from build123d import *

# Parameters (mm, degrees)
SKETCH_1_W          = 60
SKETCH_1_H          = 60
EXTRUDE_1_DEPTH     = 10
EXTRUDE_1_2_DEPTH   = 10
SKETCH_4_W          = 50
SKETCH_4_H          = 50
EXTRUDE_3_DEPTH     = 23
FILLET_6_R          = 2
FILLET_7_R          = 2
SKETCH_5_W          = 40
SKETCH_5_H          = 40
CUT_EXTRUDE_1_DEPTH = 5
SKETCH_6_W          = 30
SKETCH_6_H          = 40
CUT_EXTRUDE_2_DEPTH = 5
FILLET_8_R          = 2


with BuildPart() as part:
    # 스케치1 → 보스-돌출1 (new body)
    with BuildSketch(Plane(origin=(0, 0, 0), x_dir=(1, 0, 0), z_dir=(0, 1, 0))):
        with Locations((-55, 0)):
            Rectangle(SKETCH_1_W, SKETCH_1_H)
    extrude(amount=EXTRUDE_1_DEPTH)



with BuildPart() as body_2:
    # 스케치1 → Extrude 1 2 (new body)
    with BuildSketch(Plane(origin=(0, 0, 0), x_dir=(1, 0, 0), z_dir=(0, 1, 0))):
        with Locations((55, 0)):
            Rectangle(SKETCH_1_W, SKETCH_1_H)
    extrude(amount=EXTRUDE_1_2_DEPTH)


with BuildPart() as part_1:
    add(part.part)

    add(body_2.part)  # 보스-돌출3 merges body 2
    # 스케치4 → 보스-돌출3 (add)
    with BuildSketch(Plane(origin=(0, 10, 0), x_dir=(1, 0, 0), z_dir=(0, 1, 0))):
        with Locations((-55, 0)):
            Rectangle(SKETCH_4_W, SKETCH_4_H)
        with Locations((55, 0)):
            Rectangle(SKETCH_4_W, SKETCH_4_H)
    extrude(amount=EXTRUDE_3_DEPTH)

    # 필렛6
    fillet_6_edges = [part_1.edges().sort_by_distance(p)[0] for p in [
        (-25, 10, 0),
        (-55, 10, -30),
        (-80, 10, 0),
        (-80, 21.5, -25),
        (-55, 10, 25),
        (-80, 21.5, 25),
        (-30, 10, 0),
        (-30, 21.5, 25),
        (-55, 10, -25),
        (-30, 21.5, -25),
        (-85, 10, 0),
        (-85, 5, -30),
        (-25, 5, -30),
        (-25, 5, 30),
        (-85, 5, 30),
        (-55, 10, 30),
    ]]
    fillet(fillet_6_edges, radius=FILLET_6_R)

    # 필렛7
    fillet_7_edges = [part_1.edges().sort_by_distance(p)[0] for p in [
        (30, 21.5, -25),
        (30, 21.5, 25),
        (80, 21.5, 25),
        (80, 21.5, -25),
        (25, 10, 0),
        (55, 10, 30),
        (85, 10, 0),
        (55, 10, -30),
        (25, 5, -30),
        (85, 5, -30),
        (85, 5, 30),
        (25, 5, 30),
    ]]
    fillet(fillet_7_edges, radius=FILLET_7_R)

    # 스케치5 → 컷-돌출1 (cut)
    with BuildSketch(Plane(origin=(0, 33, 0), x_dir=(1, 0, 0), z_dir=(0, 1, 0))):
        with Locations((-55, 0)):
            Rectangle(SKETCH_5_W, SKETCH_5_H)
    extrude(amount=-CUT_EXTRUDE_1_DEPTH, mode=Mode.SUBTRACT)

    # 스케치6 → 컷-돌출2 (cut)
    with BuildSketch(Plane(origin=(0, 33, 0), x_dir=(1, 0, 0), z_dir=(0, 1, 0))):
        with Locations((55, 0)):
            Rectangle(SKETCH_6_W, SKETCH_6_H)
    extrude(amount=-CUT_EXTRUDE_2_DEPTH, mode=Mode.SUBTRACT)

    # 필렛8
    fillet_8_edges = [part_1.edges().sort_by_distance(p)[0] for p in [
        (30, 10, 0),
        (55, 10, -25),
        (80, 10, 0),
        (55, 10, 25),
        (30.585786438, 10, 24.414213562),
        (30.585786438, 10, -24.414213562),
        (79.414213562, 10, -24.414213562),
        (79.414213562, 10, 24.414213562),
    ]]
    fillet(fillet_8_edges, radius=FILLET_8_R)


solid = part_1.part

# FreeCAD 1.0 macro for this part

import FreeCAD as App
import Part
import Sketcher


def edges_at(feature, points):
    """Names of the edges that pass closest to the given points."""
    edges = feature.Shape.Edges
    near = lambda p: min(range(len(edges)), key=lambda i: edges[i].distToShape(Part.Vertex(*p))[0])
    return sorted({f"Edge{near(p) + 1}" for p in points})

doc = App.newDocument("Part")
params = doc.addObject("Spreadsheet::Sheet", "Params")
for row, (alias, value) in enumerate([
    ("sketch1_width", "60 mm"),
    ("pad1_length", "10 mm"),
    ("sketch2_width", "60 mm"),
    ("pad2_length", "10 mm"),
    ("sketch3_width", "50 mm"),
    ("pad3_length", "23 mm"),
    ("fillet_radius", "2 mm"),
    ("fillet2_radius", "2 mm"),
    ("sketch4_width", "40 mm"),
    ("pocket1_length", "5 mm"),
    ("sketch5_width", "30 mm"),
    ("sketch5_height", "40 mm"),
    ("pocket2_length", "5 mm"),
    ("fillet3_radius", "2 mm"),
], start=1):
    params.set(f"A{row}", alias)
    params.set(f"B{row}", "=" + value)
    params.setAlias(f"B{row}", alias)

body = doc.addObject("PartDesign::Body", "Body")

sketch1 = body.newObject("Sketcher::SketchObject", "Sketch")
sketch1.AttachmentSupport = (doc.getObject("XZ_Plane"), [""])
sketch1.MapMode = "FlatFace"
sketch1.addGeometry([
    Part.LineSegment(App.Vector(-85, -30, 0), App.Vector(-85, 30, 0)),
    Part.LineSegment(App.Vector(-85, 30, 0), App.Vector(-25, 30, 0)),
    Part.LineSegment(App.Vector(-25, 30, 0), App.Vector(-25, -30, 0)),
    Part.LineSegment(App.Vector(-25, -30, 0), App.Vector(-85, -30, 0)),
], False)
sketch1.addConstraint([
    Sketcher.Constraint("Coincident", 0, 2, 1, 1),
    Sketcher.Constraint("Coincident", 1, 2, 2, 1),
    Sketcher.Constraint("Coincident", 2, 2, 3, 1),
    Sketcher.Constraint("Coincident", 3, 2, 0, 1),
    Sketcher.Constraint("Vertical", 0),
    Sketcher.Constraint("Horizontal", 1),
    Sketcher.Constraint("Vertical", 2),
    Sketcher.Constraint("Horizontal", 3),
    Sketcher.Constraint("Equal", 3, 0),
    Sketcher.Constraint("DistanceX", 1, 1, 1, 2, 60.0),
    Sketcher.Constraint("DistanceX", 0, 2, -1, 1, 85.0),
    Sketcher.Constraint("DistanceY", -1, 1, 0, 2, 30.0),
])
sketch1.setExpression("Constraints[9]", "Params.sketch1_width")
pad1 = body.newObject("PartDesign::Pad", "Pad")
pad1.Profile = sketch1
pad1.setExpression("Length", "Params.pad1_length")
pad1.Reversed = True
body2 = doc.addObject("PartDesign::Body", "Body001")

sketch2 = body2.newObject("Sketcher::SketchObject", "Sketch001")
sketch2.AttachmentSupport = (doc.getObject("XZ_Plane001"), [""])
sketch2.MapMode = "FlatFace"
sketch2.addGeometry([
    Part.LineSegment(App.Vector(25, -30, 0), App.Vector(25, 30, 0)),
    Part.LineSegment(App.Vector(25, 30, 0), App.Vector(85, 30, 0)),
    Part.LineSegment(App.Vector(85, 30, 0), App.Vector(85, -30, 0)),
    Part.LineSegment(App.Vector(85, -30, 0), App.Vector(25, -30, 0)),
], False)
sketch2.addConstraint([
    Sketcher.Constraint("Coincident", 0, 2, 1, 1),
    Sketcher.Constraint("Coincident", 1, 2, 2, 1),
    Sketcher.Constraint("Coincident", 2, 2, 3, 1),
    Sketcher.Constraint("Coincident", 3, 2, 0, 1),
    Sketcher.Constraint("Vertical", 0),
    Sketcher.Constraint("Horizontal", 1),
    Sketcher.Constraint("Vertical", 2),
    Sketcher.Constraint("Horizontal", 3),
    Sketcher.Constraint("Equal", 3, 0),
    Sketcher.Constraint("DistanceX", 1, 1, 1, 2, 60.0),
    Sketcher.Constraint("DistanceX", -1, 1, 0, 2, 25.0),
    Sketcher.Constraint("DistanceY", -1, 1, 0, 2, 30.0),
])
sketch2.setExpression("Constraints[9]", "Params.sketch2_width")
pad2 = body2.newObject("PartDesign::Pad", "Pad001")
pad2.Profile = sketch2
pad2.setExpression("Length", "Params.pad2_length")
pad2.Reversed = True
body.AllowCompound = True
doc.recompute()

boolean = body.newObject("PartDesign::Boolean", "Boolean")
boolean.Type = "Fuse"
boolean.addObjects([body2])

sketch3 = body.newObject("Sketcher::SketchObject", "Sketch002")
sketch3.AttachmentSupport = (doc.getObject("XZ_Plane"), [""])
sketch3.MapMode = "FlatFace"
sketch3.AttachmentOffset = App.Placement(App.Vector(0, 0, -10), App.Rotation())
sketch3.addGeometry([
    Part.LineSegment(App.Vector(-80, -25, 0), App.Vector(-80, 25, 0)),
    Part.LineSegment(App.Vector(-80, 25, 0), App.Vector(-30, 25, 0)),
    Part.LineSegment(App.Vector(-30, 25, 0), App.Vector(-30, -25, 0)),
    Part.LineSegment(App.Vector(-30, -25, 0), App.Vector(-80, -25, 0)),
    Part.LineSegment(App.Vector(30, -25, 0), App.Vector(30, 25, 0)),
    Part.LineSegment(App.Vector(30, 25, 0), App.Vector(80, 25, 0)),
    Part.LineSegment(App.Vector(80, 25, 0), App.Vector(80, -25, 0)),
    Part.LineSegment(App.Vector(80, -25, 0), App.Vector(30, -25, 0)),
], False)
sketch3.addConstraint([
    Sketcher.Constraint("Coincident", 0, 2, 1, 1),
    Sketcher.Constraint("Coincident", 1, 2, 2, 1),
    Sketcher.Constraint("Coincident", 2, 2, 3, 1),
    Sketcher.Constraint("Coincident", 3, 2, 0, 1),
    Sketcher.Constraint("Coincident", 4, 2, 5, 1),
    Sketcher.Constraint("Coincident", 5, 2, 6, 1),
    Sketcher.Constraint("Coincident", 6, 2, 7, 1),
    Sketcher.Constraint("Coincident", 7, 2, 4, 1),
    Sketcher.Constraint("Vertical", 0),
    Sketcher.Constraint("Horizontal", 1),
    Sketcher.Constraint("Vertical", 2),
    Sketcher.Constraint("Horizontal", 3),
    Sketcher.Constraint("Vertical", 4),
    Sketcher.Constraint("Horizontal", 5),
    Sketcher.Constraint("Vertical", 6),
    Sketcher.Constraint("Horizontal", 7),
    Sketcher.Constraint("Symmetric", 2, 2, 4, 2, -1, 1),
    Sketcher.Constraint("Symmetric", 0, 2, 6, 2, -1, 1),
    Sketcher.Constraint("Horizontal", 1, 2, 4, 2),
    Sketcher.Constraint("Equal", 7, 0),
    Sketcher.Constraint("DistanceX", 1, 1, 1, 2, 50.0),
    Sketcher.Constraint("DistanceX", 0, 2, -1, 1, 80.0),
])
sketch3.setExpression("Constraints[20]", "Params.sketch3_width")
pad3 = body.newObject("PartDesign::Pad", "Pad002")
pad3.Profile = sketch3
pad3.setExpression("Length", "Params.pad3_length")
pad3.Reversed = True
doc.recompute()

fillet = body.newObject("PartDesign::Fillet", "Fillet")
fillet.Base = (pad3, edges_at(pad3, [
    (-25, 10, 0),
    (-55, 10, -30),
    (-80, 10, 0),
    (-80, 21.5, -25),
    (-55, 10, 25),
    (-80, 21.5, 25),
    (-30, 10, 0),
    (-30, 21.5, 25),
    (-55, 10, -25),
    (-30, 21.5, -25),
    (-85, 10, 0),
    (-85, 5, -30),
    (-25, 5, -30),
    (-25, 5, 30),
    (-85, 5, 30),
    (-55, 10, 30),
]))
fillet.setExpression("Radius", "Params.fillet_radius")
doc.recompute()

fillet2 = body.newObject("PartDesign::Fillet", "Fillet001")
fillet2.Base = (fillet, edges_at(fillet, [
    (30, 21.5, -25),
    (30, 21.5, 25),
    (80, 21.5, 25),
    (80, 21.5, -25),
    (25, 10, 0),
    (55, 10, 30),
    (85, 10, 0),
    (55, 10, -30),
    (25, 5, -30),
    (85, 5, -30),
    (85, 5, 30),
    (25, 5, 30),
]))
fillet2.setExpression("Radius", "Params.fillet2_radius")

sketch4 = body.newObject("Sketcher::SketchObject", "Sketch003")
sketch4.AttachmentSupport = (doc.getObject("XZ_Plane"), [""])
sketch4.MapMode = "FlatFace"
sketch4.AttachmentOffset = App.Placement(App.Vector(0, 0, -33), App.Rotation())
sketch4.addGeometry([
    Part.LineSegment(App.Vector(-75, -20, 0), App.Vector(-75, 20, 0)),
    Part.LineSegment(App.Vector(-75, 20, 0), App.Vector(-35, 20, 0)),
    Part.LineSegment(App.Vector(-35, 20, 0), App.Vector(-35, -20, 0)),
    Part.LineSegment(App.Vector(-35, -20, 0), App.Vector(-75, -20, 0)),
], False)
sketch4.addConstraint([
    Sketcher.Constraint("Coincident", 0, 2, 1, 1),
    Sketcher.Constraint("Coincident", 1, 2, 2, 1),
    Sketcher.Constraint("Coincident", 2, 2, 3, 1),
    Sketcher.Constraint("Coincident", 3, 2, 0, 1),
    Sketcher.Constraint("Vertical", 0),
    Sketcher.Constraint("Horizontal", 1),
    Sketcher.Constraint("Vertical", 2),
    Sketcher.Constraint("Horizontal", 3),
    Sketcher.Constraint("Equal", 3, 0),
    Sketcher.Constraint("DistanceX", 1, 1, 1, 2, 40.0),
    Sketcher.Constraint("DistanceX", 0, 2, -1, 1, 75.0),
    Sketcher.Constraint("DistanceY", -1, 1, 0, 2, 20.0),
])
sketch4.setExpression("Constraints[9]", "Params.sketch4_width")
pocket1 = body.newObject("PartDesign::Pocket", "Pocket")
pocket1.Profile = sketch4
pocket1.setExpression("Length", "Params.pocket1_length")
pocket1.Reversed = True

sketch5 = body.newObject("Sketcher::SketchObject", "Sketch004")
sketch5.AttachmentSupport = (doc.getObject("XZ_Plane"), [""])
sketch5.MapMode = "FlatFace"
sketch5.AttachmentOffset = App.Placement(App.Vector(0, 0, -33), App.Rotation())
sketch5.addGeometry([
    Part.LineSegment(App.Vector(40, -20, 0), App.Vector(40, 20, 0)),
    Part.LineSegment(App.Vector(40, 20, 0), App.Vector(70, 20, 0)),
    Part.LineSegment(App.Vector(70, 20, 0), App.Vector(70, -20, 0)),
    Part.LineSegment(App.Vector(70, -20, 0), App.Vector(40, -20, 0)),
], False)
sketch5.addConstraint([
    Sketcher.Constraint("Coincident", 0, 2, 1, 1),
    Sketcher.Constraint("Coincident", 1, 2, 2, 1),
    Sketcher.Constraint("Coincident", 2, 2, 3, 1),
    Sketcher.Constraint("Coincident", 3, 2, 0, 1),
    Sketcher.Constraint("Vertical", 0),
    Sketcher.Constraint("Horizontal", 1),
    Sketcher.Constraint("Vertical", 2),
    Sketcher.Constraint("Horizontal", 3),
    Sketcher.Constraint("DistanceX", 1, 1, 1, 2, 30.0),
    Sketcher.Constraint("DistanceY", 0, 1, 0, 2, 40.0),
    Sketcher.Constraint("DistanceX", -1, 1, 0, 2, 40.0),
    Sketcher.Constraint("DistanceY", -1, 1, 0, 2, 20.0),
])
sketch5.setExpression("Constraints[8]", "Params.sketch5_width")
sketch5.setExpression("Constraints[9]", "Params.sketch5_height")
pocket2 = body.newObject("PartDesign::Pocket", "Pocket001")
pocket2.Profile = sketch5
pocket2.setExpression("Length", "Params.pocket2_length")
pocket2.Reversed = True
doc.recompute()

fillet3 = body.newObject("PartDesign::Fillet", "Fillet002")
fillet3.Base = (pocket2, edges_at(pocket2, [
    (30, 10, 0),
    (55, 10, -25),
    (80, 10, 0),
    (55, 10, 25),
    (30.586, 10, 24.414),
    (30.586, 10, -24.414),
    (79.414, 10, -24.414),
    (79.414, 10, 24.414),
]))
fillet3.setExpression("Radius", "Params.fillet3_radius")

doc.recompute()
